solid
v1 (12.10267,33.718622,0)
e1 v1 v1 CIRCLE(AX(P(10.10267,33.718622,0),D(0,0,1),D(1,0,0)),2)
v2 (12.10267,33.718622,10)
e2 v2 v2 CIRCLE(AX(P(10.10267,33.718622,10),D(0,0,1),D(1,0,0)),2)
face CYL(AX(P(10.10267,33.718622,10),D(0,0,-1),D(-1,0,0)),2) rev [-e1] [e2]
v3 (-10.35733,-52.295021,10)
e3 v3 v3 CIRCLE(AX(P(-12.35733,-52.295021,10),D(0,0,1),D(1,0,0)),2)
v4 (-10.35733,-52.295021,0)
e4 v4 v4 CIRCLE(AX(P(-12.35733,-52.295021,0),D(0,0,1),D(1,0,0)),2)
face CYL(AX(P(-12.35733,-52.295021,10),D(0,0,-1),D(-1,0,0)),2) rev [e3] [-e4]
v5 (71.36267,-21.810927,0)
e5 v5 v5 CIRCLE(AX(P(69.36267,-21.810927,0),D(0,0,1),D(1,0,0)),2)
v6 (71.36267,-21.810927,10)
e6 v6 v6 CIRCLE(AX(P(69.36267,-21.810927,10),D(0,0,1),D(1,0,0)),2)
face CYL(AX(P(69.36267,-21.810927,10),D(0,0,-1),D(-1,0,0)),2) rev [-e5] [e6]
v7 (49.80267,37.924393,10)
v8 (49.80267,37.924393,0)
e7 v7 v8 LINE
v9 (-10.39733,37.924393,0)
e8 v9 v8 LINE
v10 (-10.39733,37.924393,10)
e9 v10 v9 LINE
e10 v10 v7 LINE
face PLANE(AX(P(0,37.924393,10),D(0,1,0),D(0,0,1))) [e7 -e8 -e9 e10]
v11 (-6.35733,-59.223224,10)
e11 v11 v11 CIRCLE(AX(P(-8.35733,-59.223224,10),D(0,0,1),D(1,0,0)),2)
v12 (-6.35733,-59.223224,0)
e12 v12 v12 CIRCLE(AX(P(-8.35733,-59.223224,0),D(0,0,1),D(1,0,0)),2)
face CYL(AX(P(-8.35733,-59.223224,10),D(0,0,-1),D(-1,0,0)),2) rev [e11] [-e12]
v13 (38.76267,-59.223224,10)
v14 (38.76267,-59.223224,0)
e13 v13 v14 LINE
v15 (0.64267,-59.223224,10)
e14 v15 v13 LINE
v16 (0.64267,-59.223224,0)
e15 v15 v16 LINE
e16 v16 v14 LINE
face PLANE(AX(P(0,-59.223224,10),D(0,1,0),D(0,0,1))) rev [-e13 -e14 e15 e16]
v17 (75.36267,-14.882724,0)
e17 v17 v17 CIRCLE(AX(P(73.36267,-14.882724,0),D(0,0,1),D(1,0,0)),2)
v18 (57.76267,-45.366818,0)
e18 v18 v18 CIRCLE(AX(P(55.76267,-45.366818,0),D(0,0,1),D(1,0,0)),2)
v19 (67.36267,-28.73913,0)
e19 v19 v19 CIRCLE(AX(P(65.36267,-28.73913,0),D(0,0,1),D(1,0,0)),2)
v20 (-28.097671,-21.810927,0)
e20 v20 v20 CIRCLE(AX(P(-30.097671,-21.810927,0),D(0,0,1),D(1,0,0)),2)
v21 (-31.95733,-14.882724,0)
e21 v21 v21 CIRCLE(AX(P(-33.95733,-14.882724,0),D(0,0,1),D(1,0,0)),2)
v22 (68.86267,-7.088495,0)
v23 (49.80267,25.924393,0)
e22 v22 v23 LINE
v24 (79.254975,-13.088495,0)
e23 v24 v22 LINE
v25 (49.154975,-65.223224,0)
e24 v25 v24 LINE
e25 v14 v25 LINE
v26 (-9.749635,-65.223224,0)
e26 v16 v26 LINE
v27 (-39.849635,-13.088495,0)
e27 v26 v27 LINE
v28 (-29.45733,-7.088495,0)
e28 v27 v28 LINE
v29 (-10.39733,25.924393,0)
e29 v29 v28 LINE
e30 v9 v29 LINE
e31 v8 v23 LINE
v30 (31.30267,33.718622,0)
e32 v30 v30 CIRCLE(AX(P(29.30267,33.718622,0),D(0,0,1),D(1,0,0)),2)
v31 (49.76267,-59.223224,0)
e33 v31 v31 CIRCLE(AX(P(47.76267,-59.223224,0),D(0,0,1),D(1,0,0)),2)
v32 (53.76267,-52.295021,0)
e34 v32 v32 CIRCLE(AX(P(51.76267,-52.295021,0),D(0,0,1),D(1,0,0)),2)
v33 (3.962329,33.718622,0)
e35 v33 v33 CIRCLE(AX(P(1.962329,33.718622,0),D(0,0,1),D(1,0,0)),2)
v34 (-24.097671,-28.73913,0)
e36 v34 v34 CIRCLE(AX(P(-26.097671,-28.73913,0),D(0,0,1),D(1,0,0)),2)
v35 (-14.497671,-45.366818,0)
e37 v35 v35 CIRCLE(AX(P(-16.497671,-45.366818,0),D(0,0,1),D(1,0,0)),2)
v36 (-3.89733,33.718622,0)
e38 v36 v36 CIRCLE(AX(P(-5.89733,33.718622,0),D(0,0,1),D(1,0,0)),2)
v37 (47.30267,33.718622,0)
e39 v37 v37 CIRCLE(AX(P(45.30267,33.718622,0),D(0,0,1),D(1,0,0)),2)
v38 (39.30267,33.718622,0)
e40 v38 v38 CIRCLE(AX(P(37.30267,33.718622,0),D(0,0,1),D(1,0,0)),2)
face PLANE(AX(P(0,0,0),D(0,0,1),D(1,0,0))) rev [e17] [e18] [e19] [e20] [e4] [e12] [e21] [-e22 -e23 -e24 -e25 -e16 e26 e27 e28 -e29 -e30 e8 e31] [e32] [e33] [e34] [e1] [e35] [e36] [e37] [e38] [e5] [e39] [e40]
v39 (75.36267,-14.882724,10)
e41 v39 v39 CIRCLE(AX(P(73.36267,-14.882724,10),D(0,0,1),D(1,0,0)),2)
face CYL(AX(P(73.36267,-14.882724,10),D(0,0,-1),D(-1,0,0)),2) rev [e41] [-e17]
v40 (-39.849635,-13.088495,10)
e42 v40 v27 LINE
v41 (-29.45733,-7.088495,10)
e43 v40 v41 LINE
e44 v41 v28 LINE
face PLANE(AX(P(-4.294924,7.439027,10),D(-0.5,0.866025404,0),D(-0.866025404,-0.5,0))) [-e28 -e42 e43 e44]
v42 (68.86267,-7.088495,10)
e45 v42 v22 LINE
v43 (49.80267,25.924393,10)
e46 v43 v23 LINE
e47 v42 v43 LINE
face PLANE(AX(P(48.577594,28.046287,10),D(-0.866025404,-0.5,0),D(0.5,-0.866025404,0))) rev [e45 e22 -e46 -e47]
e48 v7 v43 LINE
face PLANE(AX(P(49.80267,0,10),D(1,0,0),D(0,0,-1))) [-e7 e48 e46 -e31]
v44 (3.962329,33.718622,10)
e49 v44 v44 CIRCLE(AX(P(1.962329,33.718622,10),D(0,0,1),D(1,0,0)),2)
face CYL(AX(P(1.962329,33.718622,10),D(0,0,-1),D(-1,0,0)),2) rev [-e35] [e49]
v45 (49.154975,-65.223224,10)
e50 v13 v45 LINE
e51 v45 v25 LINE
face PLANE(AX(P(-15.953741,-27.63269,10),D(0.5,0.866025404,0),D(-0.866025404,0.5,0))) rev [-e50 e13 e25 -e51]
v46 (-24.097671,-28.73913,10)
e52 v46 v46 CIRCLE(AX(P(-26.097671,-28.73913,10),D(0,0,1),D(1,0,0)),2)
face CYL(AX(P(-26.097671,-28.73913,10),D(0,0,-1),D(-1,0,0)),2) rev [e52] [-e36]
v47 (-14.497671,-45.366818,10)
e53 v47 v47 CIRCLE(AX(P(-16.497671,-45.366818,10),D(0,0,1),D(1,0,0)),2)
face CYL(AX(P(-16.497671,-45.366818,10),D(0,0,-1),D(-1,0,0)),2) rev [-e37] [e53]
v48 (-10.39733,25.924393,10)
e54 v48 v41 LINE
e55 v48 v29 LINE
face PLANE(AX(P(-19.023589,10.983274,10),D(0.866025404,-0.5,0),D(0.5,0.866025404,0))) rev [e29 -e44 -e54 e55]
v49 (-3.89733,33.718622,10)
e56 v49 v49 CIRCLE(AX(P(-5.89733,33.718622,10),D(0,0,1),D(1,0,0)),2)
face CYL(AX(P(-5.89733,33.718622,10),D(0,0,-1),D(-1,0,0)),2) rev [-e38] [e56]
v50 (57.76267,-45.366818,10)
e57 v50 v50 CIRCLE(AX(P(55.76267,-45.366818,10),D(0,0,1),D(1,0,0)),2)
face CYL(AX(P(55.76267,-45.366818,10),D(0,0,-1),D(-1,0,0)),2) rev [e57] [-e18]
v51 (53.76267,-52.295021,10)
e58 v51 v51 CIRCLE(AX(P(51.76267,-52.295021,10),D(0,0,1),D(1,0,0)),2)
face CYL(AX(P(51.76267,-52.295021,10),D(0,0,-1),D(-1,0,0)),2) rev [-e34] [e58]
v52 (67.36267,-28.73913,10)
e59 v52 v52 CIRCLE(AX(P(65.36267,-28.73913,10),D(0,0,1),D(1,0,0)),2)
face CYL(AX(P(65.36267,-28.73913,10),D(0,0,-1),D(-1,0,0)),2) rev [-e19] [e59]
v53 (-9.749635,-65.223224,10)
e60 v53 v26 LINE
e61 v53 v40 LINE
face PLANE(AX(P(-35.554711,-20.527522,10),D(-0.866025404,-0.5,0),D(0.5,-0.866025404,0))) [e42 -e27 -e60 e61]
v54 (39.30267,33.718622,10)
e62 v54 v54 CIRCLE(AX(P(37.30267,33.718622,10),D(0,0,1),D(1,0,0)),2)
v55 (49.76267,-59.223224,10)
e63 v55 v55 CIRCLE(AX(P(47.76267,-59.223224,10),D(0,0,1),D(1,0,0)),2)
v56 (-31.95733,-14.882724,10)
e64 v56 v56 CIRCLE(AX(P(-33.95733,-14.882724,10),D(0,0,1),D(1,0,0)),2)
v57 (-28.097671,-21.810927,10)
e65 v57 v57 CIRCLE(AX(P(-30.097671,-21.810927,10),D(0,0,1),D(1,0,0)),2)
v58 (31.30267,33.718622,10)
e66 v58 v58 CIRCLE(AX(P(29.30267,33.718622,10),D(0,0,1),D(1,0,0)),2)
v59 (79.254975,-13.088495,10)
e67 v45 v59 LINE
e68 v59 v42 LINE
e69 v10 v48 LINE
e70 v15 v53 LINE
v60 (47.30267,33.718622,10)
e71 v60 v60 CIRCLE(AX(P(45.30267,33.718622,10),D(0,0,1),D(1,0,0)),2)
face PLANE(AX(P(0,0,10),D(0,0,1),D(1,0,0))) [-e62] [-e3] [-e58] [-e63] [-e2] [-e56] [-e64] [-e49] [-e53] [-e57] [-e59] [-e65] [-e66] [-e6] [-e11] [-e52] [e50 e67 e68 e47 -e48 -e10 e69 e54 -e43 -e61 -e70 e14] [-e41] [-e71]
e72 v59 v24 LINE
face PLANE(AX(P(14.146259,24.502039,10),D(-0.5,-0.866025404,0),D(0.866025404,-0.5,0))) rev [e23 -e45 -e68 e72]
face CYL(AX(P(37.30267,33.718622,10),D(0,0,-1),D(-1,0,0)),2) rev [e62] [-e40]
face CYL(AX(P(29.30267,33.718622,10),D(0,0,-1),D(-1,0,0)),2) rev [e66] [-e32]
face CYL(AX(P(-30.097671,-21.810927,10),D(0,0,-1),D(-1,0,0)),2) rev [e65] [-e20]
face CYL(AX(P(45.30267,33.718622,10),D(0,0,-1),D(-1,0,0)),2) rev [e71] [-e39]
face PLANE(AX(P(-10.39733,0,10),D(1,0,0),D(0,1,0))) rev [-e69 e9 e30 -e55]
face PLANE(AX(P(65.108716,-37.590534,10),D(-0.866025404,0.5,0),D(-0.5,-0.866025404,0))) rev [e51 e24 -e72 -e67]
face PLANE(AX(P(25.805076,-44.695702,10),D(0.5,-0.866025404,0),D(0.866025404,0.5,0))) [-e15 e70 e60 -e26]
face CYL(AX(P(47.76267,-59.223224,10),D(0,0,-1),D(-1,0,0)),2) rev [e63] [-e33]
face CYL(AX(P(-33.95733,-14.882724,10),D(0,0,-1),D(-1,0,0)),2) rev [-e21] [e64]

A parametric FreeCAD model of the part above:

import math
import FreeCAD as App
import Part
import Sketcher
Q = App.Units.Quantity

doc = App.newDocument("Part")
body = doc.addObject("PartDesign::Body", "Body")

# Sketch on XY plane
sketch1 = body.newObject("Sketcher::SketchObject", "Sketch")
sketch1.AttachmentSupport = (doc.getObject("XY_Plane"), [""])
sketch1.MapMode = "FlatFace"
sketch1.addGeometry([
    Part.LineSegment(App.Vector(-10.4, 25.9, 0), App.Vector(-29.5, -7.1, 0)),  # 0
    Part.LineSegment(App.Vector(-29.5, -7.1, 0), App.Vector(-39.8, -13.1, 0)),  # 1
    Part.LineSegment(App.Vector(-39.8, -13.1, 0), App.Vector(-9.7, -65.2, 0)),  # 2
    Part.LineSegment(App.Vector(-9.7, -65.2, 0), App.Vector(0.6, -59.2, 0)),  # 3
    Part.LineSegment(App.Vector(0.6, -59.2, 0), App.Vector(38.8, -59.2, 0)),  # 4
    Part.LineSegment(App.Vector(38.8, -59.2, 0), App.Vector(49.2, -65.2, 0)),  # 5
    Part.LineSegment(App.Vector(49.2, -65.2, 0), App.Vector(79.3, -13.1, 0)),  # 6
    Part.LineSegment(App.Vector(79.3, -13.1, 0), App.Vector(68.9, -7.1, 0)),  # 7
    Part.LineSegment(App.Vector(68.9, -7.1, 0), App.Vector(49.8, 25.9, 0)),  # 8
    Part.LineSegment(App.Vector(49.8, 25.9, 0), App.Vector(49.8, 37.9, 0)),  # 9
    Part.LineSegment(App.Vector(49.8, 37.9, 0), App.Vector(-10.4, 37.9, 0)),  # 10
    Part.LineSegment(App.Vector(-10.4, 37.9, 0), App.Vector(-10.4, 25.9, 0)),  # 11
    Part.ArcOfCircle(Part.Circle(App.Vector(45.3, 33.7, 0), App.Vector(0, 0, 1), 2), math.radians(180), math.radians(300)),  # 12
    Part.ArcOfCircle(Part.Circle(App.Vector(45.3, 33.7, 0), App.Vector(0, 0, 1), 2), math.radians(0), math.radians(180)),  # 13
    Part.ArcOfCircle(Part.Circle(App.Vector(45.3, 33.7, 0), App.Vector(0, 0, 1), 2), math.radians(-60), math.radians(0)),  # 14
    Part.Circle(App.Vector(37.3, 33.7, 0), App.Vector(0, 0, 1), 2),  # 15
    Part.Circle(App.Vector(29.3, 33.7, 0), App.Vector(0, 0, 1), 2),  # 16
    Part.Circle(App.Vector(10.1, 33.7, 0), App.Vector(0, 0, 1), 2),  # 17
    Part.Circle(App.Vector(2, 33.7, 0), App.Vector(0, 0, 1), 2),  # 18
    Part.ArcOfCircle(Part.Circle(App.Vector(-5.9, 33.7, 0), App.Vector(0, 0, 1), 2), math.radians(-120), math.radians(0)),  # 19
    Part.ArcOfCircle(Part.Circle(App.Vector(-5.9, 33.7, 0), App.Vector(0, 0, 1), 2), math.radians(0), math.radians(240)),  # 20
    Part.ArcOfCircle(Part.Circle(App.Vector(-34, -14.9, 0), App.Vector(0, 0, 1), 2), math.radians(0), math.radians(60)),  # 21
    Part.ArcOfCircle(Part.Circle(App.Vector(-34, -14.9, 0), App.Vector(0, 0, 1), 2), math.radians(-60), math.radians(0)),  # 22
    Part.ArcOfCircle(Part.Circle(App.Vector(-34, -14.9, 0), App.Vector(0, 0, 1), 2), math.radians(60), math.radians(300)),  # 23
    Part.ArcOfCircle(Part.Circle(App.Vector(-30.1, -21.8, 0), App.Vector(0, 0, 1), 2), math.radians(0), math.radians(117)),  # 24
    Part.ArcOfCircle(Part.Circle(App.Vector(-30.1, -21.8, 0), App.Vector(0, 0, 1), 2), math.radians(-57), math.radians(0)),  # 25
    Part.ArcOfCircle(Part.Circle(App.Vector(-30.1, -21.8, 0), App.Vector(0, 0, 1), 2), math.radians(117), math.radians(303)),  # 26
    Part.ArcOfCircle(Part.Circle(App.Vector(-26.1, -28.7, 0), App.Vector(0, 0, 1), 2), math.radians(0), math.radians(117)),  # 27
    Part.ArcOfCircle(Part.Circle(App.Vector(-26.1, -28.7, 0), App.Vector(0, 0, 1), 2), math.radians(-57), math.radians(0)),  # 28
    Part.ArcOfCircle(Part.Circle(App.Vector(-26.1, -28.7, 0), App.Vector(0, 0, 1), 2), math.radians(117), math.radians(303)),  # 29
    Part.ArcOfCircle(Part.Circle(App.Vector(-16.5, -45.4, 0), App.Vector(0, 0, 1), 2), math.radians(0), math.radians(117)),  # 30
    Part.ArcOfCircle(Part.Circle(App.Vector(-16.5, -45.4, 0), App.Vector(0, 0, 1), 2), math.radians(-57), math.radians(0)),  # 31
    Part.ArcOfCircle(Part.Circle(App.Vector(-16.5, -45.4, 0), App.Vector(0, 0, 1), 2), math.radians(117), math.radians(303)),  # 32
    Part.ArcOfCircle(Part.Circle(App.Vector(-12.4, -52.3, 0), App.Vector(0, 0, 1), 2), math.radians(0), math.radians(120)),  # 33
    Part.ArcOfCircle(Part.Circle(App.Vector(-12.4, -52.3, 0), App.Vector(0, 0, 1), 2), math.radians(-60), math.radians(0)),  # 34
    Part.ArcOfCircle(Part.Circle(App.Vector(-12.4, -52.3, 0), App.Vector(0, 0, 1), 2), math.radians(120), math.radians(300)),  # 35
    Part.ArcOfCircle(Part.Circle(App.Vector(-8.4, -59.2, 0), App.Vector(0, 0, 1), 2), math.radians(0), math.radians(120)),  # 36
    Part.ArcOfCircle(Part.Circle(App.Vector(-8.4, -59.2, 0), App.Vector(0, 0, 1), 2), math.radians(120), math.radians(360)),  # 37
    Part.ArcOfCircle(Part.Circle(App.Vector(73.4, -14.9, 0), App.Vector(0, 0, 1), 2), math.radians(120), math.radians(240)),  # 38
    Part.ArcOfCircle(Part.Circle(App.Vector(73.4, -14.9, 0), App.Vector(0, 0, 1), 2), math.radians(0), math.radians(120)),  # 39
    Part.ArcOfCircle(Part.Circle(App.Vector(73.4, -14.9, 0), App.Vector(0, 0, 1), 2), math.radians(-120), math.radians(0)),  # 40
    Part.ArcOfCircle(Part.Circle(App.Vector(47.8, -59.2, 0), App.Vector(0, 0, 1), 2), math.radians(60), math.radians(180)),  # 41
    Part.ArcOfCircle(Part.Circle(App.Vector(47.8, -59.2, 0), App.Vector(0, 0, 1), 2), math.radians(0), math.radians(60)),  # 42
    Part.ArcOfCircle(Part.Circle(App.Vector(47.8, -59.2, 0), App.Vector(0, 0, 1), 2), math.radians(180), math.radians(360)),  # 43
    Part.ArcOfCircle(Part.Circle(App.Vector(51.8, -52.3, 0), App.Vector(0, 0, 1), 2), math.radians(60), math.radians(240)),  # 44
    Part.ArcOfCircle(Part.Circle(App.Vector(51.8, -52.3, 0), App.Vector(0, 0, 1), 2), math.radians(0), math.radians(60)),  # 45
    Part.ArcOfCircle(Part.Circle(App.Vector(51.8, -52.3, 0), App.Vector(0, 0, 1), 2), math.radians(-120), math.radians(0)),  # 46
    Part.ArcOfCircle(Part.Circle(App.Vector(55.8, -45.4, 0), App.Vector(0, 0, 1), 2), math.radians(60), math.radians(240)),  # 47
    Part.ArcOfCircle(Part.Circle(App.Vector(55.8, -45.4, 0), App.Vector(0, 0, 1), 2), math.radians(0), math.radians(60)),  # 48
    Part.ArcOfCircle(Part.Circle(App.Vector(55.8, -45.4, 0), App.Vector(0, 0, 1), 2), math.radians(-120), math.radians(0)),  # 49
    Part.ArcOfCircle(Part.Circle(App.Vector(65.4, -28.7, 0), App.Vector(0, 0, 1), 2), math.radians(60), math.radians(240)),  # 50
    Part.ArcOfCircle(Part.Circle(App.Vector(65.4, -28.7, 0), App.Vector(0, 0, 1), 2), math.radians(0), math.radians(60)),  # 51
    Part.ArcOfCircle(Part.Circle(App.Vector(65.4, -28.7, 0), App.Vector(0, 0, 1), 2), math.radians(-120), math.radians(0)),  # 52
    Part.ArcOfCircle(Part.Circle(App.Vector(69.4, -21.8, 0), App.Vector(0, 0, 1), 2), math.radians(60), math.radians(240)),  # 53
    Part.ArcOfCircle(Part.Circle(App.Vector(69.4, -21.8, 0), App.Vector(0, 0, 1), 2), math.radians(0), math.radians(60)),  # 54
    Part.ArcOfCircle(Part.Circle(App.Vector(69.4, -21.8, 0), App.Vector(0, 0, 1), 2), math.radians(-120), math.radians(0)),  # 55
], False)
sketch1.addConstraint([
    Sketcher.Constraint("Coincident", 0, 2, 1, 1),
    Sketcher.Constraint("Coincident", 1, 2, 2, 1),
    Sketcher.Constraint("Coincident", 2, 2, 3, 1),
    Sketcher.Constraint("Coincident", 3, 2, 4, 1),
    Sketcher.Constraint("Coincident", 4, 2, 5, 1),
    Sketcher.Constraint("Coincident", 5, 2, 6, 1),
    Sketcher.Constraint("Coincident", 6, 2, 7, 1),
    Sketcher.Constraint("Coincident", 7, 2, 8, 1),
    Sketcher.Constraint("Coincident", 8, 2, 9, 1),
    Sketcher.Constraint("Coincident", 9, 2, 10, 1),
    Sketcher.Constraint("Coincident", 10, 2, 11, 1),
    Sketcher.Constraint("Coincident", 11, 2, 0, 1),
    Sketcher.Constraint("Tangent", 12, 1, 13, 2),
    Sketcher.Constraint("Tangent", 13, 1, 14, 2),
    Sketcher.Constraint("Tangent", 14, 1, 12, 2),
    Sketcher.Constraint("Tangent", 19, 1, 20, 2),
    Sketcher.Constraint("Coincident", 20, 1, 19, 2),
    Sketcher.Constraint("Tangent", 21, 1, 22, 2),
    Sketcher.Constraint("Tangent", 22, 1, 23, 2),
    Sketcher.Constraint("Tangent", 23, 1, 21, 2),
    Sketcher.Constraint("Tangent", 24, 1, 25, 2),
    Sketcher.Constraint("Tangent", 25, 1, 26, 2),
    Sketcher.Constraint("Tangent", 26, 1, 24, 2),
    Sketcher.Constraint("Tangent", 27, 1, 28, 2),
    Sketcher.Constraint("Tangent", 28, 1, 29, 2),
    Sketcher.Constraint("Tangent", 29, 1, 27, 2),
    Sketcher.Constraint("Tangent", 30, 1, 31, 2),
    Sketcher.Constraint("Tangent", 31, 1, 32, 2),
    Sketcher.Constraint("Tangent", 32, 1, 30, 2),
    Sketcher.Constraint("Tangent", 33, 1, 34, 2),
    Sketcher.Constraint("Tangent", 34, 1, 35, 2),
    Sketcher.Constraint("Tangent", 35, 1, 33, 2),
    Sketcher.Constraint("Tangent", 36, 1, 37, 2),
    Sketcher.Constraint("Coincident", 37, 1, 36, 2),
    Sketcher.Constraint("Tangent", 38, 1, 39, 2),
    Sketcher.Constraint("Tangent", 39, 1, 40, 2),
    Sketcher.Constraint("Tangent", 40, 1, 38, 2),
    Sketcher.Constraint("Tangent", 41, 1, 42, 2),
    Sketcher.Constraint("Tangent", 42, 1, 43, 2),
    Sketcher.Constraint("Tangent", 43, 1, 41, 2),
    Sketcher.Constraint("Tangent", 44, 1, 45, 2),
    Sketcher.Constraint("Tangent", 45, 1, 46, 2),
    Sketcher.Constraint("Tangent", 46, 1, 44, 2),
    Sketcher.Constraint("Tangent", 47, 1, 48, 2),
    Sketcher.Constraint("Tangent", 48, 1, 49, 2),
    Sketcher.Constraint("Tangent", 49, 1, 47, 2),
    Sketcher.Constraint("Tangent", 50, 1, 51, 2),
    Sketcher.Constraint("Tangent", 51, 1, 52, 2),
    Sketcher.Constraint("Tangent", 52, 1, 50, 2),
    Sketcher.Constraint("Tangent", 53, 1, 54, 2),
    Sketcher.Constraint("Tangent", 54, 1, 55, 2),
    Sketcher.Constraint("Tangent", 55, 1, 53, 2),
    Sketcher.Constraint("Horizontal", 4),
    Sketcher.Constraint("Vertical", 9),
    Sketcher.Constraint("Horizontal", 10),
    Sketcher.Constraint("Vertical", 11),
    Sketcher.Constraint("Equal", 14, 15),
    Sketcher.Constraint("Equal", 15, 16),
    Sketcher.Constraint("Equal", 16, 17),
    Sketcher.Constraint("Equal", 17, 18),
    Sketcher.Constraint("Equal", 18, 19),
    Sketcher.Constraint("Equal", 20, 21),
    Sketcher.Constraint("Equal", 23, 24),
    Sketcher.Constraint("Equal", 26, 27),
    Sketcher.Constraint("Equal", 29, 30),
    Sketcher.Constraint("Equal", 32, 33),
    Sketcher.Constraint("Equal", 35, 36),
    Sketcher.Constraint("Equal", 37, 38),
    Sketcher.Constraint("Equal", 40, 41),
    Sketcher.Constraint("Equal", 43, 44),
    Sketcher.Constraint("Equal", 46, 47),
    Sketcher.Constraint("Equal", 49, 50),
    Sketcher.Constraint("Equal", 52, 53),
    Sketcher.Constraint("Perpendicular", 1, 2),
    Sketcher.Constraint("Perpendicular", 2, 3),
    Sketcher.Constraint("Perpendicular", 0, 5),
    Sketcher.Constraint("Perpendicular", 5, 6),
    Sketcher.Constraint("Perpendicular", 6, 7),
    Sketcher.Constraint("Perpendicular", 3, 8),
    Sketcher.Constraint("Horizontal", 14, 3, 15, 3),
    Sketcher.Constraint("Horizontal", 15, 3, 16, 3),
    Sketcher.Constraint("Horizontal", 16, 3, 17, 3),
    Sketcher.Constraint("Horizontal", 17, 3, 18, 3),
    Sketcher.Constraint("Horizontal", 18, 3, 19, 3),
    Sketcher.Constraint("Horizontal", 23, 3, 38, 3),
    Sketcher.Constraint("Horizontal", 37, 3, 41, 3),
    Sketcher.Constraint("Horizontal", 35, 3, 44, 3),
    Sketcher.Constraint("Horizontal", 32, 3, 47, 3),
    Sketcher.Constraint("Horizontal", 29, 3, 50, 3),
    Sketcher.Constraint("Horizontal", 26, 3, 53, 3),
    Sketcher.Constraint("Horizontal", 43, 3, 3, 2),
    Sketcher.Constraint("Horizontal", 2, 2, 5, 2),
    Sketcher.Constraint("Horizontal", 1, 2, 6, 2),
    Sketcher.Constraint("Horizontal", 0, 2, 7, 2),
    Sketcher.Constraint("Horizontal", 8, 2, 11, 2),
    Sketcher.Constraint("Horizontal", 20, 3, 12, 1),
    Sketcher.Constraint("Horizontal", 12, 1, 13, 1),
    Sketcher.Constraint("Horizontal", 14, 1, 19, 1),
    Sketcher.Constraint("Horizontal", 13, 1, 20, 1),
    Sketcher.Constraint("Horizontal", 40, 3, 21, 1),
    Sketcher.Constraint("Horizontal", 55, 3, 24, 1),
    Sketcher.Constraint("Horizontal", 52, 3, 27, 1),
    Sketcher.Constraint("Horizontal", 49, 3, 30, 1),
    Sketcher.Constraint("Horizontal", 46, 3, 33, 1),
    Sketcher.Constraint("Horizontal", 4, 2, 36, 1),
    Sketcher.Constraint("Horizontal", 23, 1, 38, 1),
    Sketcher.Constraint("Horizontal", 21, 1, 39, 1),
    Sketcher.Constraint("Horizontal", 22, 1, 40, 1),
    Sketcher.Constraint("Horizontal", 37, 1, 41, 1),
    Sketcher.Constraint("Horizontal", 36, 1, 42, 1),
    Sketcher.Constraint("Horizontal", 42, 1, 43, 1),
    Sketcher.Constraint("Horizontal", 35, 1, 44, 1),
    Sketcher.Constraint("Horizontal", 33, 1, 45, 1),
    Sketcher.Constraint("Horizontal", 34, 1, 46, 1),
    Sketcher.Constraint("Horizontal", 30, 1, 48, 1),
    Sketcher.Constraint("Horizontal", 27, 1, 51, 1),
    Sketcher.Constraint("Horizontal", 24, 1, 54, 1),
    Sketcher.Constraint("Vertical", 22, 1, 23, 1),
    Sketcher.Constraint("Equal", 1, 3),
    Sketcher.Constraint("Equal", 3, 5),
    Sketcher.Constraint("Diameter", 15, 4.0),
    Sketcher.Constraint("DistanceY", 9, 1, 9, 2, 12.0),
    Sketcher.Constraint("Angle", 0, Q("-120 deg")),
    Sketcher.Constraint("Distance", 1, 12.0),
    Sketcher.Constraint("DistanceX", 10, 2, 10, 1, 60.2),
    Sketcher.Constraint("Distance", 2, 60.2),
    Sketcher.Constraint("DistanceX", 4, 1, 4, 2, 38.12),
    Sketcher.Constraint("DistanceY", 31, 1, -1, 1, 47.034898),
    Sketcher.Constraint("DistanceY", 32, 1, -1, 1, 43.577199),
    Sketcher.Constraint("DistanceX", -1, 1, 12, 3, 45.30267),
    Sketcher.Constraint("DistanceX", -1, 1, 15, 3, 37.30267),
    Sketcher.Constraint("DistanceX", -1, 1, 16, 3, 29.30267),
    Sketcher.Constraint("DistanceX", -1, 1, 17, 3, 10.10267),
    Sketcher.Constraint("DistanceX", -1, 1, 18, 3, 1.962329),
    Sketcher.Constraint("DistanceX", 19, 3, -1, 1, 5.89733),
    Sketcher.Constraint("DistanceX", 21, 3, -1, 1, 33.95733),
    Sketcher.Constraint("DistanceX", 24, 3, -1, 1, 30.097671),
    Sketcher.Constraint("DistanceX", 27, 3, -1, 1, 26.097671),
    Sketcher.Constraint("DistanceY", 27, 3, -1, 1, 28.73913),
    Sketcher.Constraint("DistanceX", 30, 3, -1, 1, 16.497671),
    Sketcher.Constraint("DistanceX", 33, 3, -1, 1, 12.35733),
    Sketcher.Constraint("DistanceY", 33, 3, -1, 1, 52.295021),
    Sketcher.Constraint("DistanceX", 36, 3, -1, 1, 8.35733),
    Sketcher.Constraint("DistanceX", -1, 1, 38, 3, 73.36267),
    Sketcher.Constraint("DistanceX", -1, 1, 41, 3, 47.76267),
    Sketcher.Constraint("DistanceX", -1, 1, 44, 3, 51.76267),
    Sketcher.Constraint("DistanceX", -1, 1, 47, 3, 55.76267),
    Sketcher.Constraint("DistanceX", -1, 1, 50, 3, 65.36267),
    Sketcher.Constraint("DistanceX", -1, 1, 53, 3, 69.36267),
    Sketcher.Constraint("DistanceX", 0, 2, -1, 1, 29.45733),
    Sketcher.Constraint("DistanceX", -1, 1, 14, 1, 46.30267),
    Sketcher.Constraint("DistanceY", -1, 1, 14, 1, 31.986571),
    Sketcher.Constraint("DistanceX", 22, 1, -1, 1, 32.95733),
    Sketcher.Constraint("DistanceY", 28, 1, -1, 1, 30.407211),
    Sketcher.Constraint("DistanceY", 29, 1, -1, 1, 26.949511),
    Sketcher.Constraint("DistanceX", 34, 1, -1, 1, 11.35733),
    Sketcher.Constraint("DistanceX", 35, 1, -1, 1, 13.35733),
    Sketcher.Constraint("DistanceX", 37, 1, -1, 1, 9.35733),
    Sketcher.Constraint("DistanceX", -1, 1, 47, 1, 56.76267),
    Sketcher.Constraint("DistanceX", -1, 1, 49, 1, 54.76267),
    Sketcher.Constraint("DistanceY", 49, 1, -1, 1, 47.098869),
    Sketcher.Constraint("DistanceX", -1, 1, 50, 1, 66.36267),
    Sketcher.Constraint("DistanceX", -1, 1, 52, 1, 64.36267),
    Sketcher.Constraint("DistanceX", -1, 1, 53, 1, 70.36267),
    Sketcher.Constraint("DistanceX", -1, 1, 55, 1, 68.36267),
    Sketcher.Constraint("DistanceY", 21, 3, -1, 1, 14.882724),
    Sketcher.Constraint("DistanceY", 24, 3, -1, 1, 21.810927),
    Sketcher.Constraint("DistanceY", 36, 3, -1, 1, 59.223224),
    Sketcher.Constraint("DistanceX", 25, 1, -1, 1, 28.994263),
    Sketcher.Constraint("DistanceX", 26, 1, -1, 1, 30.990567),
])
pad1 = body.newObject("PartDesign::Pad", "Pad")
pad1.Profile = sketch1
pad1.Length = 10

doc.recompute()
